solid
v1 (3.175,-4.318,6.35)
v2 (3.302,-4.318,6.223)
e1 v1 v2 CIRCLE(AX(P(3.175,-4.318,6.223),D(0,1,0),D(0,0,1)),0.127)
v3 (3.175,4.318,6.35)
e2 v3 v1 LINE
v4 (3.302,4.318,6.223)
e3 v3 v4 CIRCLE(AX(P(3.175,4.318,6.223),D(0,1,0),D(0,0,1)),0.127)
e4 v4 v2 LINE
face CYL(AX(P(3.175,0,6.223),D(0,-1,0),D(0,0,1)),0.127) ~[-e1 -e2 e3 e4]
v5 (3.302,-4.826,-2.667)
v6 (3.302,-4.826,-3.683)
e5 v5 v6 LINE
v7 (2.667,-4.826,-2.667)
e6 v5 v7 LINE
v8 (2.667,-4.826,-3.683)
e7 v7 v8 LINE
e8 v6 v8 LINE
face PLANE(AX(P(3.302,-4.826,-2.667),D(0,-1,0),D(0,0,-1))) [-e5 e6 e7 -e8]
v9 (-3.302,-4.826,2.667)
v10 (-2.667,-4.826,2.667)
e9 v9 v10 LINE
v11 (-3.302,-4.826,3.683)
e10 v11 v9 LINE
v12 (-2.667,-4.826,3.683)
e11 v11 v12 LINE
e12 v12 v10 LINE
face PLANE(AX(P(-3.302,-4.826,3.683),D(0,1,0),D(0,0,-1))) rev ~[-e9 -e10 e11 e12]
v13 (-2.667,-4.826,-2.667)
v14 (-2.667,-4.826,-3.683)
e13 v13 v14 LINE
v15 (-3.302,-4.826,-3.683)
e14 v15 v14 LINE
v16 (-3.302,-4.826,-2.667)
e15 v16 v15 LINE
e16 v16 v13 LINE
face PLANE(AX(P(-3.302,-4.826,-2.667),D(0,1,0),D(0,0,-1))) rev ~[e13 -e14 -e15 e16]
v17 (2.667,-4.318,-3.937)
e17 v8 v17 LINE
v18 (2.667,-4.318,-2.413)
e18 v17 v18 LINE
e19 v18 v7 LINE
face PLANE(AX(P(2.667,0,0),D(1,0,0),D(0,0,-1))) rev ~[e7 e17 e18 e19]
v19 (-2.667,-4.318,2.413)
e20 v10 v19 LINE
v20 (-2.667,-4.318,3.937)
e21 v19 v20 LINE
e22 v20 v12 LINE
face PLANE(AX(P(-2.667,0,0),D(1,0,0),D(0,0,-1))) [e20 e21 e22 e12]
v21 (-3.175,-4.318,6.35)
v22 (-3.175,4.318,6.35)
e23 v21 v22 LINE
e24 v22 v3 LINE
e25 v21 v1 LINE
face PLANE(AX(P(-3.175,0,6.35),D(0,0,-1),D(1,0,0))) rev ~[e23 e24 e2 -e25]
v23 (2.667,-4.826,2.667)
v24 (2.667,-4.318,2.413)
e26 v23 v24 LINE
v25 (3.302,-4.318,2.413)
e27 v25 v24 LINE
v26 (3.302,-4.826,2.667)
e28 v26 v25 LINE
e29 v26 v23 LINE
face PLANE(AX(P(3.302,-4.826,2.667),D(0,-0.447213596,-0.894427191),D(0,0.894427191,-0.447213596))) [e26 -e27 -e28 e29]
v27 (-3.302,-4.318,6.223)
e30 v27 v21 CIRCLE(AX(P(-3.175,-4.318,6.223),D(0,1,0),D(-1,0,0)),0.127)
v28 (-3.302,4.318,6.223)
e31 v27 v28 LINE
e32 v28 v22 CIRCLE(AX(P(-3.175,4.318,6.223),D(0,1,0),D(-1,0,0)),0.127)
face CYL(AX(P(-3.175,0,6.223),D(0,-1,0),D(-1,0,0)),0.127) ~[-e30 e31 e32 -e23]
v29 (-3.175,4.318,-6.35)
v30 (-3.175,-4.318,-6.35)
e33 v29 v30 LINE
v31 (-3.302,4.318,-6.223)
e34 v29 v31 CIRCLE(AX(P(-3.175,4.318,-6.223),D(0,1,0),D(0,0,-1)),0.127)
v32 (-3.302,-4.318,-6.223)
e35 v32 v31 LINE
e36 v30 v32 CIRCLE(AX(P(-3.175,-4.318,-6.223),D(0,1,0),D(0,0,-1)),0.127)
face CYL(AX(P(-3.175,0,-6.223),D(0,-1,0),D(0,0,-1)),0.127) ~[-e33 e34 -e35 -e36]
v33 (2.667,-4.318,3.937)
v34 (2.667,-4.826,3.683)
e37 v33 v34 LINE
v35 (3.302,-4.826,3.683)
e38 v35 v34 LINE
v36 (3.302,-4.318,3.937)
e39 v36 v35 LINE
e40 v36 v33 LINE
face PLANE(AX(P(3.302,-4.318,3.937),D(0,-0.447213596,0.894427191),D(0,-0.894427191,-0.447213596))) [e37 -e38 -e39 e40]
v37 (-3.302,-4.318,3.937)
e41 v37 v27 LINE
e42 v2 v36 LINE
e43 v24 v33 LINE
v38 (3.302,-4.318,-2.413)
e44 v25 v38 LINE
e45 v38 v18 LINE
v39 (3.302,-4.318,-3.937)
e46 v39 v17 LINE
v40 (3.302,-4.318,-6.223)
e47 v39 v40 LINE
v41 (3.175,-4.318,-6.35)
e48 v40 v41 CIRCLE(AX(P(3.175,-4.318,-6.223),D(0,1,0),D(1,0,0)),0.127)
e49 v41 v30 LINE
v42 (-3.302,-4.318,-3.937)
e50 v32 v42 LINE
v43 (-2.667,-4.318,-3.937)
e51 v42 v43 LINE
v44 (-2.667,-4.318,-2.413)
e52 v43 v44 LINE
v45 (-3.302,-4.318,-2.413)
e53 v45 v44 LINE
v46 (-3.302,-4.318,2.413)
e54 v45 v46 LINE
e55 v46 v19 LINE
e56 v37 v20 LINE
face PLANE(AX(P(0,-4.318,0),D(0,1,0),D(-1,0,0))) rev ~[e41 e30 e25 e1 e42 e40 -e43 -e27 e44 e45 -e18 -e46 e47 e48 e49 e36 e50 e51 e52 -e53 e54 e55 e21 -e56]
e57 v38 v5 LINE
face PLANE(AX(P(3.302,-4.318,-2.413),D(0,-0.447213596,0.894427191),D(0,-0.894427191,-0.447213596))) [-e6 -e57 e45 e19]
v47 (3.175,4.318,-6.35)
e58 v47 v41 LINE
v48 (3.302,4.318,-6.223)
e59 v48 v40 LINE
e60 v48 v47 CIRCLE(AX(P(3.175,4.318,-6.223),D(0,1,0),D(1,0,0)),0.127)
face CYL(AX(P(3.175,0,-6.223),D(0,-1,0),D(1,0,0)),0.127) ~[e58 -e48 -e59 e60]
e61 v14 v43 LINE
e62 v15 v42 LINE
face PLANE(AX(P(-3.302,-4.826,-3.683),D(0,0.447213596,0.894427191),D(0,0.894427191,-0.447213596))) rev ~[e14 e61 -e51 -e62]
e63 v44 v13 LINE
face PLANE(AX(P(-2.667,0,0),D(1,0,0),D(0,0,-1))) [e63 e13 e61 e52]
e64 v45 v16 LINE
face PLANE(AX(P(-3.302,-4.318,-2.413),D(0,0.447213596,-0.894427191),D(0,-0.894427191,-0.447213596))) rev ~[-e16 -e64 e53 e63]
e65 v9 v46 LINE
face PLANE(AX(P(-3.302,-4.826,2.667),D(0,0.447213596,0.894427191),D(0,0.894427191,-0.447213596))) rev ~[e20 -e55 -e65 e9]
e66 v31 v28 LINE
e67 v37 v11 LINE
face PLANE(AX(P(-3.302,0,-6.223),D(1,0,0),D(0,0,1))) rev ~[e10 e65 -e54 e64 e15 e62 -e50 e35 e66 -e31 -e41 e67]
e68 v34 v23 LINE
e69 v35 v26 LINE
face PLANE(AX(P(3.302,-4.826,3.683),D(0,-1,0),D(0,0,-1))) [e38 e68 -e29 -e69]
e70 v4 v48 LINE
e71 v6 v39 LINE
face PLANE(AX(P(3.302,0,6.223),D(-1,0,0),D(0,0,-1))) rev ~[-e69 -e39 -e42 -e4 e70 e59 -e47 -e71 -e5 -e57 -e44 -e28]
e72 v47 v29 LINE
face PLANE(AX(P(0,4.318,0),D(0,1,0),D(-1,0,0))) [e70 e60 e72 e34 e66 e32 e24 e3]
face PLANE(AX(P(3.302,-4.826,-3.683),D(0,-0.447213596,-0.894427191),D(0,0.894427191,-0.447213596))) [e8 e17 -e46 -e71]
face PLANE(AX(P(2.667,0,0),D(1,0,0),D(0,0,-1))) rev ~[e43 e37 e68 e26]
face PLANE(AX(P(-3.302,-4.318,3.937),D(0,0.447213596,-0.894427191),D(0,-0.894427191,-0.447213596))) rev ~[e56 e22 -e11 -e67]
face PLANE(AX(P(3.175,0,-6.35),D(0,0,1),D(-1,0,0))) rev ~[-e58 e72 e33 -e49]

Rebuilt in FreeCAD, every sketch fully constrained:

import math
import FreeCAD as App
import Part
import Sketcher
from FreeCAD import Vector
Q = App.Units.Quantity


def add_polygon(sketch, points):
    """Adds a closed chain of lines whose ends are joined by coincident constraints."""
    first, n = sketch.GeometryCount, len(points)
    for a, b in zip(points, points[1:] + points[:1]):
        sketch.addGeometry(Part.LineSegment(App.Vector(*a, 0), App.Vector(*b, 0)), False)
    for i in range(n):
        sketch.addConstraint(Sketcher.Constraint("Coincident", first + i, 2, first + (i + 1) % n, 1))

doc = App.newDocument("Part")
body = doc.addObject("PartDesign::Body", "Body")

# Sketch on XZ plane
sketch1 = doc.addObject("Sketcher::SketchObject", "Sketch")
body.addObject(sketch1)
sketch1.AttachmentSupport = (doc.XZ_Plane, [""])
sketch1.MapMode = "FlatFace"
sketch1.addGeometry([
    Part.ArcOfCircle(Part.Circle(Vector(-3.175, -6.223, 0), Vector(0, 0, 1), 0.127), math.radians(180), math.radians(270)),  # 0
    Part.LineSegment(Vector(-3.302, -6.223, 0), Vector(-3.302, 6.223, 0)),  # 1
    Part.ArcOfCircle(Part.Circle(Vector(-3.175, 6.223, 0), Vector(0, 0, 1), 0.127), math.radians(90), math.radians(180)),  # 2
    Part.LineSegment(Vector(-3.175, 6.35, 0), Vector(3.175, 6.35, 0)),  # 3
    Part.ArcOfCircle(Part.Circle(Vector(3.175, 6.223, 0), Vector(0, 0, 1), 0.127), math.radians(0), math.radians(90)),  # 4
    Part.LineSegment(Vector(3.302, 6.223, 0), Vector(3.302, -6.223, 0)),  # 5
    Part.ArcOfCircle(Part.Circle(Vector(3.175, -6.223, 0), Vector(0, 0, 1), 0.127), math.radians(-90), math.radians(0)),  # 6
    Part.LineSegment(Vector(3.175, -6.35, 0), Vector(-3.175, -6.35, 0)),  # 7
], False)
sketch1.addConstraint([
    Sketcher.Constraint("Tangent", 0, 1, 1, 1),
    Sketcher.Constraint("Tangent", 1, 2, 2, 2),
    Sketcher.Constraint("Tangent", 2, 1, 3, 1),
    Sketcher.Constraint("Tangent", 3, 2, 4, 2),
    Sketcher.Constraint("Tangent", 4, 1, 5, 1),
    Sketcher.Constraint("Tangent", 5, 2, 6, 2),
    Sketcher.Constraint("Tangent", 6, 1, 7, 1),
    Sketcher.Constraint("Tangent", 7, 2, 0, 2),
    Sketcher.Constraint("Vertical", 1),
    Sketcher.Constraint("Horizontal", 3),
    Sketcher.Constraint("Vertical", 5),
    Sketcher.Constraint("Horizontal", 7),
    Sketcher.Constraint("Equal", 0, 2),
    Sketcher.Constraint("Equal", 2, 4),
    Sketcher.Constraint("Equal", 4, 6),
    Sketcher.Constraint("Symmetric", 0, 3, 4, 3, -1, 1),
    Sketcher.Constraint("Radius", 0, Q("0.005 in")),
    Sketcher.Constraint("DistanceX", 3, 1, 3, 2, Q("0.25 in")),
    Sketcher.Constraint("DistanceY", 1, 1, 1, 2, Q("0.49 in")),
])
pad1 = doc.addObject("PartDesign::Pad", "Pad")
body.addObject(pad1)
pad1.Profile = sketch1
pad1.Length = Q("0.34 in")
pad1.Midplane = True

# Sketch on YZ plane
sketch2 = doc.addObject("Sketcher::SketchObject", "Sketch001")
body.addObject(sketch2)
sketch2.AttachmentSupport = (doc.YZ_Plane, [""])
sketch2.MapMode = "FlatFace"
sketch2.AttachmentOffset = App.Placement(Vector(0, 0, 0.13 * 25.4), App.Rotation())
add_polygon(sketch2, [(-4.318, 2.413), (-4.318, 3.937), (-4.826, 3.683), (-4.826, 2.667)])  # lines 0-3
sketch2.addConstraint([
    Sketcher.Constraint("Vertical", 0),
    Sketcher.Constraint("Vertical", 2),
    Sketcher.Constraint("Equal", 1, 3),
    Sketcher.Constraint("DistanceY", 0, 1, 0, 2, Q("0.06 in")),
    Sketcher.Constraint("DistanceY", 2, 2, 2, 1, Q("0.04 in")),
    Sketcher.Constraint("DistanceX", 0, 2, -1, 1, Q("0.17 in")),
    Sketcher.Constraint("DistanceX", 1, 2, -1, 1, Q("0.19 in")),
    Sketcher.Constraint("DistanceY", -1, 1, 0, 2, Q("0.155 in")),
])
pad2 = doc.addObject("PartDesign::Pad", "Pad001")
body.addObject(pad2)
pad2.Profile = sketch2
pad2.Length = Q("0.025 in")
pad2.Reversed = True

# Sketch on YZ plane
sketch3 = doc.addObject("Sketcher::SketchObject", "Sketch002")
body.addObject(sketch3)
sketch3.AttachmentSupport = (doc.YZ_Plane, [""])
sketch3.MapMode = "FlatFace"
sketch3.AttachmentOffset = App.Placement(Vector(0, 0, 0.13 * 25.4), App.Rotation())
add_polygon(sketch3, [(-4.318, -3.937), (-4.318, -2.413), (-4.826, -2.667), (-4.826, -3.683)])  # lines 0-3
sketch3.addConstraint([
    Sketcher.Constraint("Vertical", 0),
    Sketcher.Constraint("Vertical", 2),
    Sketcher.Constraint("Equal", 1, 3),
    Sketcher.Constraint("DistanceY", 0, 1, 0, 2, Q("0.06 in")),
    Sketcher.Constraint("DistanceY", 2, 2, 2, 1, Q("0.04 in")),
    Sketcher.Constraint("DistanceX", 0, 2, -1, 1, Q("0.17 in")),
    Sketcher.Constraint("DistanceX", 1, 2, -1, 1, Q("0.19 in")),
    Sketcher.Constraint("DistanceY", 0, 2, -1, 1, Q("0.095 in")),
])
pad3 = doc.addObject("PartDesign::Pad", "Pad002")
body.addObject(pad3)
pad3.Profile = sketch3
pad3.Length = Q("0.025 in")
pad3.Reversed = True

# Sketch on YZ plane
sketch4 = doc.addObject("Sketcher::SketchObject", "Sketch003")
body.addObject(sketch4)
sketch4.AttachmentSupport = (doc.YZ_Plane, [""])
sketch4.MapMode = "FlatFace"
sketch4.AttachmentOffset = App.Placement(Vector(0, 0, -0.13 * 25.4), App.Rotation())
add_polygon(sketch4, [(-4.318, 2.413), (-4.318, 3.937), (-4.826, 3.683), (-4.826, 2.667)])  # lines 0-3
sketch4.addConstraint([
    Sketcher.Constraint("Vertical", 0),
    Sketcher.Constraint("Vertical", 2),
    Sketcher.Constraint("Equal", 1, 3),
    Sketcher.Constraint("DistanceY", 0, 1, 0, 2, Q("0.06 in")),
    Sketcher.Constraint("DistanceY", 2, 2, 2, 1, Q("0.04 in")),
    Sketcher.Constraint("DistanceX", 0, 2, -1, 1, Q("0.17 in")),
    Sketcher.Constraint("DistanceX", 1, 2, -1, 1, Q("0.19 in")),
    Sketcher.Constraint("DistanceY", -1, 1, 0, 2, Q("0.155 in")),
])
pad4 = doc.addObject("PartDesign::Pad", "Pad003")
body.addObject(pad4)
pad4.Profile = sketch4
pad4.Length = Q("0.025 in")

# Sketch on YZ plane
sketch5 = doc.addObject("Sketcher::SketchObject", "Sketch004")
body.addObject(sketch5)
sketch5.AttachmentSupport = (doc.YZ_Plane, [""])
sketch5.MapMode = "FlatFace"
sketch5.AttachmentOffset = App.Placement(Vector(0, 0, -0.13 * 25.4), App.Rotation())
add_polygon(sketch5, [(-4.318, -3.937), (-4.318, -2.413), (-4.826, -2.667), (-4.826, -3.683)])  # lines 0-3
sketch5.addConstraint([
    Sketcher.Constraint("Vertical", 0),
    Sketcher.Constraint("Vertical", 2),
    Sketcher.Constraint("Equal", 1, 3),
    Sketcher.Constraint("DistanceY", 0, 1, 0, 2, Q("0.06 in")),
    Sketcher.Constraint("DistanceY", 2, 2, 2, 1, Q("0.04 in")),
    Sketcher.Constraint("DistanceX", 0, 2, -1, 1, Q("0.17 in")),
    Sketcher.Constraint("DistanceX", 1, 2, -1, 1, Q("0.19 in")),
    Sketcher.Constraint("DistanceY", 0, 2, -1, 1, Q("0.095 in")),
])
pad5 = doc.addObject("PartDesign::Pad", "Pad004")
body.addObject(pad5)
pad5.Profile = sketch5
pad5.Length = Q("0.025 in")

doc.recompute()
